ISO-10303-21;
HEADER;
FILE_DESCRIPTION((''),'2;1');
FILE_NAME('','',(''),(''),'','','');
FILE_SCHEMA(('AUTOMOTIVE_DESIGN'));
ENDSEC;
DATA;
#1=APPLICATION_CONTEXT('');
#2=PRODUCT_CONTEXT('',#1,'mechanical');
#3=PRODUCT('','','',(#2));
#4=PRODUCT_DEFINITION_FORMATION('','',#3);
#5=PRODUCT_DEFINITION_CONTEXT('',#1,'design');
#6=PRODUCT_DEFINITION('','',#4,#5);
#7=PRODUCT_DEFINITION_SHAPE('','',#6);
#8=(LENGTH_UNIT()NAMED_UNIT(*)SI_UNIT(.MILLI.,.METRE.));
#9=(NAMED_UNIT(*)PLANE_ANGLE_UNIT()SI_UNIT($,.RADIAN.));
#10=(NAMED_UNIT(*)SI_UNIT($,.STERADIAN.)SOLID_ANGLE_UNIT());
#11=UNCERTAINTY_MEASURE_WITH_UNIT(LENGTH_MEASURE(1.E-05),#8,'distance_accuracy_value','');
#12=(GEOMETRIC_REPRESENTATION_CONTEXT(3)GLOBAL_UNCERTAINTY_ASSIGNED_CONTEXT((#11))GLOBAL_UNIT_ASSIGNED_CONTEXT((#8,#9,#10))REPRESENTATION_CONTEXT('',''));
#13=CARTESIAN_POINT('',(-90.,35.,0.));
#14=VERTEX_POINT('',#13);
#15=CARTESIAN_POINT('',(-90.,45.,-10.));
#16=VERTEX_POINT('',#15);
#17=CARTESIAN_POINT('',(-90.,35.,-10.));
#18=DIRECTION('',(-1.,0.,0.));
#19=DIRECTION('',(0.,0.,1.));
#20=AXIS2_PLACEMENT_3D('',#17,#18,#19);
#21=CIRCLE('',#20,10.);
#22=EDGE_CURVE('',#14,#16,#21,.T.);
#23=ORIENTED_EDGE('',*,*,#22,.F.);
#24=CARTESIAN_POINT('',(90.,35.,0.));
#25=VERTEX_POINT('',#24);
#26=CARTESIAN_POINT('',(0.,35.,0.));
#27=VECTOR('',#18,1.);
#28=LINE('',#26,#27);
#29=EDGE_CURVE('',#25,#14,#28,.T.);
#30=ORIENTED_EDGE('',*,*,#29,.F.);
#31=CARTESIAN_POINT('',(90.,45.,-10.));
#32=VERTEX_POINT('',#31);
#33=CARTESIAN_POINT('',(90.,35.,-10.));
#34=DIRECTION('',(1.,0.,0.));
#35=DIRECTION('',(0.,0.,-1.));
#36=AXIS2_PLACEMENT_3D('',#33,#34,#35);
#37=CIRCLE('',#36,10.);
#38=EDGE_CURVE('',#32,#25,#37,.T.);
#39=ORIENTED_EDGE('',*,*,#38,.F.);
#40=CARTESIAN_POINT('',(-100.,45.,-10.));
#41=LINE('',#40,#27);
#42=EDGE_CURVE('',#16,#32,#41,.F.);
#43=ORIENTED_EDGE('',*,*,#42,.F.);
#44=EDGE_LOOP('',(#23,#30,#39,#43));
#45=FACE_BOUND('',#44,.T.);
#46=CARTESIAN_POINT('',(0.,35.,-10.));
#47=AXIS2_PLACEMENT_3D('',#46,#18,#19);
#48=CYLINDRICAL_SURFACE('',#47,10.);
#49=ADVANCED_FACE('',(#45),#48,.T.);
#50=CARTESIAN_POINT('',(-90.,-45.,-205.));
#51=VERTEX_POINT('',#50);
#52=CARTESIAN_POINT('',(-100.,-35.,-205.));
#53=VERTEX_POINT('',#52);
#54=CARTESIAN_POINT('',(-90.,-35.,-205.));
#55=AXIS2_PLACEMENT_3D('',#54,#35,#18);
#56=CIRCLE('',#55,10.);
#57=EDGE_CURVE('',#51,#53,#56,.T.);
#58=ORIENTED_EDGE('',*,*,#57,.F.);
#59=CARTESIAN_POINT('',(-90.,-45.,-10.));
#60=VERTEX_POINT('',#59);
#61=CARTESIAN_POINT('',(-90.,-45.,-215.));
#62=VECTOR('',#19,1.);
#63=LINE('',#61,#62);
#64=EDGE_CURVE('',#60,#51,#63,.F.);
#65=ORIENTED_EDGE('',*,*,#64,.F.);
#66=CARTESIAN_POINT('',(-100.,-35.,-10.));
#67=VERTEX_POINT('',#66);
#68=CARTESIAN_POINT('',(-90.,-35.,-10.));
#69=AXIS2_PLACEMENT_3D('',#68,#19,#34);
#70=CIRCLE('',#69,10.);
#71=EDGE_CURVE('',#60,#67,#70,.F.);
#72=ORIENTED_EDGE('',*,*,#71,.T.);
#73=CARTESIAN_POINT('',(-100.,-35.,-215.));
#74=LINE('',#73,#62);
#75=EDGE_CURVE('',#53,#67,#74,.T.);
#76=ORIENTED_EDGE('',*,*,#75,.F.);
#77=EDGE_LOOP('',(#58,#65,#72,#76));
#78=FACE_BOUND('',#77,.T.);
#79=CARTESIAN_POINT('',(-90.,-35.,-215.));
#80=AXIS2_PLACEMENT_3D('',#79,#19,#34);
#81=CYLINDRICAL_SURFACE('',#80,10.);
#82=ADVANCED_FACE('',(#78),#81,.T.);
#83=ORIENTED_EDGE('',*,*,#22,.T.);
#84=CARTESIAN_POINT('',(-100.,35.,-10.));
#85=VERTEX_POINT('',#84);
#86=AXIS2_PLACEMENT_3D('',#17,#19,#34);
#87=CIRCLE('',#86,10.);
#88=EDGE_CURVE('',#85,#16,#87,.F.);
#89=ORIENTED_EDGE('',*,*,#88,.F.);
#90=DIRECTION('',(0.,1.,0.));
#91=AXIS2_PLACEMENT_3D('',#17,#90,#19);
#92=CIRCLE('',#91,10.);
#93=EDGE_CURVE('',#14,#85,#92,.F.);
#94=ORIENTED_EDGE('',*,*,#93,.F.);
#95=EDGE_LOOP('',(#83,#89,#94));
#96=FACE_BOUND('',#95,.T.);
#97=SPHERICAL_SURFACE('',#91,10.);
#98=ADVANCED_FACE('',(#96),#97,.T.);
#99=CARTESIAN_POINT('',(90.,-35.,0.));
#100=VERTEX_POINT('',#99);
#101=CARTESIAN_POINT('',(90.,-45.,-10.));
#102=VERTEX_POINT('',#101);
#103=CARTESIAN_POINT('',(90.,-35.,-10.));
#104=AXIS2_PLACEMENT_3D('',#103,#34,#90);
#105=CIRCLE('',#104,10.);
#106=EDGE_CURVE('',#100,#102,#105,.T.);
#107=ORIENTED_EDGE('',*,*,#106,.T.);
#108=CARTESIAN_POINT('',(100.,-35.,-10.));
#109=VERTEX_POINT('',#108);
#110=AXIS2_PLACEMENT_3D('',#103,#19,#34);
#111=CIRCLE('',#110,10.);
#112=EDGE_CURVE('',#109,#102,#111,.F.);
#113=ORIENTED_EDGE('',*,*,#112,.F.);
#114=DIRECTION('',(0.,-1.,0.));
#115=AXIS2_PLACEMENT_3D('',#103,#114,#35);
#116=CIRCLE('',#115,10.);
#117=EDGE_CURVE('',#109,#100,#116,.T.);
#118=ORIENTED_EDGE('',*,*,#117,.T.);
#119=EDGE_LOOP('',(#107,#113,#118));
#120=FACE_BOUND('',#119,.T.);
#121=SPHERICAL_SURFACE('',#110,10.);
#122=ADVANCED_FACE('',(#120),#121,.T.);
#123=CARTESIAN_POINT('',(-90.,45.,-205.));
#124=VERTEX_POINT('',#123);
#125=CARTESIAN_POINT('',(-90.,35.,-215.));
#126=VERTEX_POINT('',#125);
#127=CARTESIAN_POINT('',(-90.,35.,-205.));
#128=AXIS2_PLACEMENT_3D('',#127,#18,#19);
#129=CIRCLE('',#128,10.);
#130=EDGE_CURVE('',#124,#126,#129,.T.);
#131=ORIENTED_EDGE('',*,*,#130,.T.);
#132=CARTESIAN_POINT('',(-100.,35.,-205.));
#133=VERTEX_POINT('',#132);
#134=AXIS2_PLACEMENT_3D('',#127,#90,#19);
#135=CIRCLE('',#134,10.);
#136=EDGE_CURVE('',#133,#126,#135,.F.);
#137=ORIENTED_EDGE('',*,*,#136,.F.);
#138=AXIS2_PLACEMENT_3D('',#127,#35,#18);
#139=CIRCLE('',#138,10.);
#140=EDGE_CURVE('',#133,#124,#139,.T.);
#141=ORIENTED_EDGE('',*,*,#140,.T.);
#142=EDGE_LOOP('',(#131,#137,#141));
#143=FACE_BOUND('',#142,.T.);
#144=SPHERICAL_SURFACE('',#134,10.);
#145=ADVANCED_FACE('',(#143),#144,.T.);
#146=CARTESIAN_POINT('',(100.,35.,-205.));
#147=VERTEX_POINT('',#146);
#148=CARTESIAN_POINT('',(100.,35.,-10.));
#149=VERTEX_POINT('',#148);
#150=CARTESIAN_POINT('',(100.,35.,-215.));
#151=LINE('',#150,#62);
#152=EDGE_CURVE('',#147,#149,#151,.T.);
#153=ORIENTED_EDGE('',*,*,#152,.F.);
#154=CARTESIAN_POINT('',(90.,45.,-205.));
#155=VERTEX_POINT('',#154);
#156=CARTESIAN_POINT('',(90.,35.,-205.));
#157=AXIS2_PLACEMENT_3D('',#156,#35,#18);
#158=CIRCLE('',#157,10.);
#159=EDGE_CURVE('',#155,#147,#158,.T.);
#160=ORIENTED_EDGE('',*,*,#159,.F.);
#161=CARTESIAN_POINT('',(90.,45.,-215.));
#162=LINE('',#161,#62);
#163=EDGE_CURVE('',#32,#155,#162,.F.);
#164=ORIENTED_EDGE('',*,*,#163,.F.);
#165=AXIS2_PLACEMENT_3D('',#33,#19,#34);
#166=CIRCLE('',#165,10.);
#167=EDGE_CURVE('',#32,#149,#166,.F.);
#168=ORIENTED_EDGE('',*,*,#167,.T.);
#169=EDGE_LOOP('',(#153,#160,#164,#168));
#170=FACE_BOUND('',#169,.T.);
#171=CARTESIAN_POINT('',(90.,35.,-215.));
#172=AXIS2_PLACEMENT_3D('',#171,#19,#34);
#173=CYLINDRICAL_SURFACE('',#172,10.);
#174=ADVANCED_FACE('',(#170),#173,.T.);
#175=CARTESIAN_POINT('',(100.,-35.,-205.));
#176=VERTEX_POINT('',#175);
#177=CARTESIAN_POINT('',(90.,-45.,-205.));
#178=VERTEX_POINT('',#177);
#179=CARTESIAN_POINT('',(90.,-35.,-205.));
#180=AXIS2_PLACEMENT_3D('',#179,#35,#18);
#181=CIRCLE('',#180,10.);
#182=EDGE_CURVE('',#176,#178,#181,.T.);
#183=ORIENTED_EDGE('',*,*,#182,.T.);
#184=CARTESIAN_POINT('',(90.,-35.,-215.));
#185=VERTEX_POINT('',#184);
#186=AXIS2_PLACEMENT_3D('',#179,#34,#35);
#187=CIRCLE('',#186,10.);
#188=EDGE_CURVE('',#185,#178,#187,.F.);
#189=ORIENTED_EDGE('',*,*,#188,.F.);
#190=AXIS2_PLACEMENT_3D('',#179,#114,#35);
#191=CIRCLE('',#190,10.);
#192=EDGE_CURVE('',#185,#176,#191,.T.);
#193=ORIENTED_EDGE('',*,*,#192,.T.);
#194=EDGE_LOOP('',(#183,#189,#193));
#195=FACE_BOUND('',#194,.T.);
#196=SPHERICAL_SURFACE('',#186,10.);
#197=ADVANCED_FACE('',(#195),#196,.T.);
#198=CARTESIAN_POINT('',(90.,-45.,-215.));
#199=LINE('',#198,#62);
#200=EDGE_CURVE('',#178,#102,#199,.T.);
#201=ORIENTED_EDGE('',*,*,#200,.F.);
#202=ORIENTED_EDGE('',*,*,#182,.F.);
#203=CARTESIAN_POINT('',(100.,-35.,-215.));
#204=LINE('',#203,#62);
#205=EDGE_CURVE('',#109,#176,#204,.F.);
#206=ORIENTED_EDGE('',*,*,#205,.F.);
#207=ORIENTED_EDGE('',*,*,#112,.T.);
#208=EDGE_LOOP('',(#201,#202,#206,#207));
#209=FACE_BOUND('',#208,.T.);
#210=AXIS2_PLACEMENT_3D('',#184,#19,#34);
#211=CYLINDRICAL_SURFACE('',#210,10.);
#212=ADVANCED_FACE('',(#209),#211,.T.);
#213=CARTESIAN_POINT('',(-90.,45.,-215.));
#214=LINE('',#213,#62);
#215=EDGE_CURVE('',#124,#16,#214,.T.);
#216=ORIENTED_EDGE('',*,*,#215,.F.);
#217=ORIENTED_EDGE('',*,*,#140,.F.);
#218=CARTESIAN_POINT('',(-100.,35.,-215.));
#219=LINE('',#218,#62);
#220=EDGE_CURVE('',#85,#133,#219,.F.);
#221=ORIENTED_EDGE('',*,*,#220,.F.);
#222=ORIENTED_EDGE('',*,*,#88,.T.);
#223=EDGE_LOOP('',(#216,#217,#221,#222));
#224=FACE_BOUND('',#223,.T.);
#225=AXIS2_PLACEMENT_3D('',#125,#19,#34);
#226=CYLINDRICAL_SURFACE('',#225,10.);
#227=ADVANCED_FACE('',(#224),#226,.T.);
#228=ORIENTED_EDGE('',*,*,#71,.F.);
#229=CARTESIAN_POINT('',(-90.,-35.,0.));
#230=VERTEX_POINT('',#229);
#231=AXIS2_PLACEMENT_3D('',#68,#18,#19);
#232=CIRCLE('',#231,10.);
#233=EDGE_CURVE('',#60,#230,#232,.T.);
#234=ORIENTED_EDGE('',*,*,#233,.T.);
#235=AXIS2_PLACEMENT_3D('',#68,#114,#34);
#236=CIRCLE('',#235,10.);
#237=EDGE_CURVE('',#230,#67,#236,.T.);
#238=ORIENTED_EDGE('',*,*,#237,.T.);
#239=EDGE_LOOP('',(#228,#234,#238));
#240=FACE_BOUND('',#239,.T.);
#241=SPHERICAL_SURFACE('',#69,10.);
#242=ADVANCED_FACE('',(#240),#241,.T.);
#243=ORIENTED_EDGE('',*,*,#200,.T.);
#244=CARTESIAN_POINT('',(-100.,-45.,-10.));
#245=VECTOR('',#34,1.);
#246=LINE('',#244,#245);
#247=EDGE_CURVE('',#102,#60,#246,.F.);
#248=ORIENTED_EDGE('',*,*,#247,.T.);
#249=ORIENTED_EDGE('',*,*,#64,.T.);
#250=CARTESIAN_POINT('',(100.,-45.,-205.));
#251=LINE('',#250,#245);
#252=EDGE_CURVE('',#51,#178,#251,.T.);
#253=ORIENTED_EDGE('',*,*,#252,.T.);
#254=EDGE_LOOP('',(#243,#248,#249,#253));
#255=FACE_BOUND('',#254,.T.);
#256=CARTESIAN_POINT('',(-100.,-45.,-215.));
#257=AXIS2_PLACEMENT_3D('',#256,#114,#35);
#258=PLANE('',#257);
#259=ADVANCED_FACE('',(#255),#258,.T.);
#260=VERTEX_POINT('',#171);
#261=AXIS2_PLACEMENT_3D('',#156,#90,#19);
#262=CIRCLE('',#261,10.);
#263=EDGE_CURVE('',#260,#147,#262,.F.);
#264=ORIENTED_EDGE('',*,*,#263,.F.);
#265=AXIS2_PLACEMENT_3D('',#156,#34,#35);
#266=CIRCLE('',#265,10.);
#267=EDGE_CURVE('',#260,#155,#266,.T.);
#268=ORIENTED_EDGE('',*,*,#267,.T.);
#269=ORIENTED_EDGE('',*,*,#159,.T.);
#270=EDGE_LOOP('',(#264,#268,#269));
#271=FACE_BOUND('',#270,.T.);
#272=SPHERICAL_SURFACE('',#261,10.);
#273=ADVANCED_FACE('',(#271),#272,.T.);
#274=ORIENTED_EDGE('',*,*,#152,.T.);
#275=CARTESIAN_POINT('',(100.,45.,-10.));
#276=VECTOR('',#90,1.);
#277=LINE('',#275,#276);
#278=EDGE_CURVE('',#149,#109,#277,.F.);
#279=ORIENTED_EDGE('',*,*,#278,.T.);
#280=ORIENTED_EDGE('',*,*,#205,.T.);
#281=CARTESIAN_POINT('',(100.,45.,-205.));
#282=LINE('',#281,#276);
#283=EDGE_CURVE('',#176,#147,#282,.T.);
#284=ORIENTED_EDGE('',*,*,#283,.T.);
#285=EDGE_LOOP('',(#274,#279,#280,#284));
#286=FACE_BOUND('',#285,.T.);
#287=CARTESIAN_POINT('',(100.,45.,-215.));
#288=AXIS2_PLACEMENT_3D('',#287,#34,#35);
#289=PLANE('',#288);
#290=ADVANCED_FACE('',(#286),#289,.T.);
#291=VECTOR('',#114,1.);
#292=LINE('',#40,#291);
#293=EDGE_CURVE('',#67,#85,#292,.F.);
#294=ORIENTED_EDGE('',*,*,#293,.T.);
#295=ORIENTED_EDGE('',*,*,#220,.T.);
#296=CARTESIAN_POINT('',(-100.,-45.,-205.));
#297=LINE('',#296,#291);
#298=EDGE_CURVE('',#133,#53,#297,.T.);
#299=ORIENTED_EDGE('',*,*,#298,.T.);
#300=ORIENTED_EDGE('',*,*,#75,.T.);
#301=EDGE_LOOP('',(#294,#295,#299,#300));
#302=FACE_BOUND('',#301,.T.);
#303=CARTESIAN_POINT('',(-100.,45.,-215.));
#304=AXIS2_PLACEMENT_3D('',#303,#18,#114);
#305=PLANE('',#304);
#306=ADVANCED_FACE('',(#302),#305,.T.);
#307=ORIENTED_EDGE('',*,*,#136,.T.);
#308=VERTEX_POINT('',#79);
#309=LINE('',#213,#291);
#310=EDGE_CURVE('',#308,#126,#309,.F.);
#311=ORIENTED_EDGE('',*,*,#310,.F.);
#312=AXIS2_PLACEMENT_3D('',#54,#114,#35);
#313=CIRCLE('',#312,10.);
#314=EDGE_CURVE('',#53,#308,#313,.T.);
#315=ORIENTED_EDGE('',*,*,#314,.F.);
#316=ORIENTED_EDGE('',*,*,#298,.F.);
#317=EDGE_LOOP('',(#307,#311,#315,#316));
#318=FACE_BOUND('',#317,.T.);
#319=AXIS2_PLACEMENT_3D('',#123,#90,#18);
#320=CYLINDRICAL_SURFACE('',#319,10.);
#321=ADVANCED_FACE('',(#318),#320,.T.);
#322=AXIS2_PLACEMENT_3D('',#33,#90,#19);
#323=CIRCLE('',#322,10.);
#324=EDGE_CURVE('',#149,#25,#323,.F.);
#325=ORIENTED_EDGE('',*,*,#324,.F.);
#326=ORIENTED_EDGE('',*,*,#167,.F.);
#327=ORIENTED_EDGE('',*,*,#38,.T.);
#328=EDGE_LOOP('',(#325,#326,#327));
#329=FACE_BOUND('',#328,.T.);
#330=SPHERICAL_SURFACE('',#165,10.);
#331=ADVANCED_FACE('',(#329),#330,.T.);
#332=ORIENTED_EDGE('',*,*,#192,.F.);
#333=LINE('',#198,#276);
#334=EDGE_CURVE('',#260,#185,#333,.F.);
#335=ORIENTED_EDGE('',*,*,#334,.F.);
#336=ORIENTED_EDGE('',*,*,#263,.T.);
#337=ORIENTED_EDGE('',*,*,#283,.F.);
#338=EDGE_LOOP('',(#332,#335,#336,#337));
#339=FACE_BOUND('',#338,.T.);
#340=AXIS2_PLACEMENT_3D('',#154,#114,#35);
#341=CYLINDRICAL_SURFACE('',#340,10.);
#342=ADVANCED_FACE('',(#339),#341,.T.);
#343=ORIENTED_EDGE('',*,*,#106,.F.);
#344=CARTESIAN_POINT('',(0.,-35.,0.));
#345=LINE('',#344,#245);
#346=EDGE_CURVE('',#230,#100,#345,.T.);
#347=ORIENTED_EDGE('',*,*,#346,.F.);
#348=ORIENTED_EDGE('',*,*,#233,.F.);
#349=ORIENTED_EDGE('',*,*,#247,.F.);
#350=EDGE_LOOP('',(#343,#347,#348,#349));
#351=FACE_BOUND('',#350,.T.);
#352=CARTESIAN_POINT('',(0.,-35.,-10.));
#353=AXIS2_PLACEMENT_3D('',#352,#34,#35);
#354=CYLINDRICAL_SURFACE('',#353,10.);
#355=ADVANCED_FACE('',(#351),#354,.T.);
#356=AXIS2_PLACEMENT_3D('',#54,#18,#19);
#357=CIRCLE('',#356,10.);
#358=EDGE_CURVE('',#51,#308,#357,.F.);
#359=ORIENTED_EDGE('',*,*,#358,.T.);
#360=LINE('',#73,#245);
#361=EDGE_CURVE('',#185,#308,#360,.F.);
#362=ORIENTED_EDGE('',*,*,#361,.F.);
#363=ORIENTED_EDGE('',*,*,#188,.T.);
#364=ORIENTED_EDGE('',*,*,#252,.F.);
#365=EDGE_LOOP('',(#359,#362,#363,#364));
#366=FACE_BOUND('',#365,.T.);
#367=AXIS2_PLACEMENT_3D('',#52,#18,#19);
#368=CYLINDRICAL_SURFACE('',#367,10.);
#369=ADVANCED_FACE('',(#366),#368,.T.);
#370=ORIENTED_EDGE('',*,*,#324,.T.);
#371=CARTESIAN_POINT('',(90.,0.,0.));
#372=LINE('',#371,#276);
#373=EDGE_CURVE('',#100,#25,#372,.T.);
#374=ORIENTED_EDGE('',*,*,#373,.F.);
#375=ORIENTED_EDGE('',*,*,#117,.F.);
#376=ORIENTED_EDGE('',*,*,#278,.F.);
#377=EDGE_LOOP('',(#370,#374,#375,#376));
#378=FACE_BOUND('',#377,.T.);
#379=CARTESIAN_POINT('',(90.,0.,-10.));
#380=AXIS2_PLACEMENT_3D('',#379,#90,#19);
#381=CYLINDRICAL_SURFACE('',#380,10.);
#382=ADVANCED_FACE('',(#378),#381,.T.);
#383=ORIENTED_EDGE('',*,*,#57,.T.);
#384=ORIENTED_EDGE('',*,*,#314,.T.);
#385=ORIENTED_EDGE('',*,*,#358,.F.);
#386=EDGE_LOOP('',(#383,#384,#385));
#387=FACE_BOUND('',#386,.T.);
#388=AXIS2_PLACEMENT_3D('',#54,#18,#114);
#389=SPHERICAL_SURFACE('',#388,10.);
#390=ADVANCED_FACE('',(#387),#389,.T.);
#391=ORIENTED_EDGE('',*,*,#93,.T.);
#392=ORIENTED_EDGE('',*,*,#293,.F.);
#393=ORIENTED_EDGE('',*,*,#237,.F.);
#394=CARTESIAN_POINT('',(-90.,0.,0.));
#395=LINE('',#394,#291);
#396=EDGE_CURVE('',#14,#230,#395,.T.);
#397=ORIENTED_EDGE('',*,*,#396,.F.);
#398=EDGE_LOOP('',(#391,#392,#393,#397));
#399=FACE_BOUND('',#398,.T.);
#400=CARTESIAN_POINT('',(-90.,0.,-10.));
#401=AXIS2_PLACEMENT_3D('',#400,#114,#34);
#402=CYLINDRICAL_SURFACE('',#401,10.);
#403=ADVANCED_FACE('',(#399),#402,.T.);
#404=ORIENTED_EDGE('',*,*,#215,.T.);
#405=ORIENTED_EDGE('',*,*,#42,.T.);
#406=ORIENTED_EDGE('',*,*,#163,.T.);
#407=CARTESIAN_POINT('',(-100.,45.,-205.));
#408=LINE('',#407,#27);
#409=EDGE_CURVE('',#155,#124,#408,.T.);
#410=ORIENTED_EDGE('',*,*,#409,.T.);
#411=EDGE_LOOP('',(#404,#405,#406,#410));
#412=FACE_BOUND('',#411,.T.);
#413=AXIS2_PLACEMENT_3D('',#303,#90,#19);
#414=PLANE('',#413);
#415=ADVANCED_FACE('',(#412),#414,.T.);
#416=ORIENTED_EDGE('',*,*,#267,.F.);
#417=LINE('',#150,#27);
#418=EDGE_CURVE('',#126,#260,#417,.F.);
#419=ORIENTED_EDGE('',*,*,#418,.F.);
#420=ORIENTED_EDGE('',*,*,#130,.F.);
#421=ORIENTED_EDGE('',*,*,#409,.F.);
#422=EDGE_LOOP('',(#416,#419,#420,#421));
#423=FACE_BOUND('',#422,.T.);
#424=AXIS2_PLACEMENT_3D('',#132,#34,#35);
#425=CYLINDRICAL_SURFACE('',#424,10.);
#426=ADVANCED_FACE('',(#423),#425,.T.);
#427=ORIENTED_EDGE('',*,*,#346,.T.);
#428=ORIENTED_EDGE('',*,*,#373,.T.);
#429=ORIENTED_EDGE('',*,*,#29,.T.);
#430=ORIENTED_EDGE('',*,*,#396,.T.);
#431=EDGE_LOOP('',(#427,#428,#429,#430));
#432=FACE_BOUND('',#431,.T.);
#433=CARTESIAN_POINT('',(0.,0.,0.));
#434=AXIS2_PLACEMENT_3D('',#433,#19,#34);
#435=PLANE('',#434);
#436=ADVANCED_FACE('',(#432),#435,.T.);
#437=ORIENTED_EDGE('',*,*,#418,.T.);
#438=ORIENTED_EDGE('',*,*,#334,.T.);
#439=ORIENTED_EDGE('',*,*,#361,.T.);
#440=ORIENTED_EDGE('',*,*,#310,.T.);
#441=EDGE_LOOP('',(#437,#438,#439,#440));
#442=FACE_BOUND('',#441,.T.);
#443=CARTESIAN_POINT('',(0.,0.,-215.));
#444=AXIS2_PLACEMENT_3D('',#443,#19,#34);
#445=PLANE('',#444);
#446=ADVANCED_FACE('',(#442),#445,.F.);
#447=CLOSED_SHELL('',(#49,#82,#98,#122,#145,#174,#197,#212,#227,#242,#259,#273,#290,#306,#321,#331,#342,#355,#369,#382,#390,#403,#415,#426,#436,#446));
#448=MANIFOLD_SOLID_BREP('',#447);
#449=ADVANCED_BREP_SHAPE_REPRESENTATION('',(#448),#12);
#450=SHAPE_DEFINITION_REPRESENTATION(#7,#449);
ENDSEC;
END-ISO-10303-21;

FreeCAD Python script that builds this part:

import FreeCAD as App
import Part
import Sketcher


def add_polygon(sketch, points):
    """Adds a closed chain of lines whose ends are joined by coincident constraints."""
    first, n = sketch.GeometryCount, len(points)
    for a, b in zip(points, points[1:] + points[:1]):
        sketch.addGeometry(Part.LineSegment(App.Vector(*a, 0), App.Vector(*b, 0)), False)
    for i in range(n):
        sketch.addConstraint(Sketcher.Constraint("Coincident", first + i, 2, first + (i + 1) % n, 1))

doc = App.newDocument("Part")
body = doc.addObject("PartDesign::Body", "Body")

sketch1 = doc.addObject("Sketcher::SketchObject", "Sketch")
body.addObject(sketch1)
sketch1.AttachmentSupport = (doc.XY_Plane, [""])
sketch1.MapMode = "FlatFace"
add_polygon(sketch1, [(-100, 45), (-100, -45), (100, -45), (100, 45)])
sketch1.addConstraint(Sketcher.Constraint("Vertical", 0))
sketch1.addConstraint(Sketcher.Constraint("Horizontal", 1))
sketch1.addConstraint(Sketcher.Constraint("Vertical", 2))
sketch1.addConstraint(Sketcher.Constraint("Horizontal", 3))
sketch1.addConstraint(Sketcher.Constraint("Symmetric", 0, 2, 2, 2, -1, 1))
sketch1.addConstraint(Sketcher.Constraint("DistanceX", 1, 1, 1, 2, 200.0))
sketch1.addConstraint(Sketcher.Constraint("DistanceY", 0, 2, 0, 1, 90.0))
pad1 = doc.addObject("PartDesign::Pad", "Pad")
body.addObject(pad1)
pad1.Profile = sketch1
pad1.Length = 215
pad1.Reversed = True
doc.recompute()

fillet = doc.addObject("PartDesign::Fillet", "Fillet")
body.addObject(fillet)
fillet.Base = (pad1, ["Edge1"])
fillet.UseAllEdges = True
fillet.Radius = 10

doc.recompute()
